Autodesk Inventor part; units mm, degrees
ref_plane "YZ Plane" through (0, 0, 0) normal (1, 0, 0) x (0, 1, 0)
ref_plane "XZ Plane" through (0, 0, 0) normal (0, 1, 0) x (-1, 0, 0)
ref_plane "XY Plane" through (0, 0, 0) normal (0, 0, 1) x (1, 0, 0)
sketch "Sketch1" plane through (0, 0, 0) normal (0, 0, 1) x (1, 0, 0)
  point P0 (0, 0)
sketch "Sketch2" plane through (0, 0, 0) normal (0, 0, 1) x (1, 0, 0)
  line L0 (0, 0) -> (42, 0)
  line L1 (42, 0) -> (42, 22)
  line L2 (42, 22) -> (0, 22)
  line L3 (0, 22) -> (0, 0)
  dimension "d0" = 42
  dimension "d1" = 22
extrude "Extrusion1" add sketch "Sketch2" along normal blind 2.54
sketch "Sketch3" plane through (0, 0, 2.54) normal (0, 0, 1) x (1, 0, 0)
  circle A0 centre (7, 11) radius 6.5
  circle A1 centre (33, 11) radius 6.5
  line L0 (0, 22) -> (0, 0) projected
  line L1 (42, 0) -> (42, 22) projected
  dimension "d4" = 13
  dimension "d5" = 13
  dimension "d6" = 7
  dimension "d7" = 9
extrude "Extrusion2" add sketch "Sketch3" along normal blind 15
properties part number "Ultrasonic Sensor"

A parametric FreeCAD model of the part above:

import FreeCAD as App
import Part
import Sketcher

V = App.Vector


def add_polygon(sketch, points):
    """Adds a closed chain of lines whose ends are joined by coincident constraints."""
    first, n = sketch.GeometryCount, len(points)
    for a, b in zip(points, points[1:] + points[:1]):
        sketch.addGeometry(Part.LineSegment(App.Vector(*a, 0), App.Vector(*b, 0)), False)
    for i in range(n):
        sketch.addConstraint(Sketcher.Constraint("Coincident", first + i, 2, first + (i + 1) % n, 1))

doc = App.newDocument("Part")
body = doc.addObject("PartDesign::Body", "Body")

# Sketch on XY plane
sketch1 = doc.addObject("Sketcher::SketchObject", "Sketch")
body.addObject(sketch1)
sketch1.AttachmentSupport = (doc.XY_Plane, [""])
sketch1.MapMode = "FlatFace"
add_polygon(sketch1, [(0, 22), (0, 0), (42, 0), (42, 22)])  # lines 0-3
sketch1.addConstraint(Sketcher.Constraint("Vertical", 0))
sketch1.addConstraint(Sketcher.Constraint("Horizontal", 1))
sketch1.addConstraint(Sketcher.Constraint("Vertical", 2))
sketch1.addConstraint(Sketcher.Constraint("Horizontal", 3))
sketch1.addConstraint(Sketcher.Constraint("Coincident", 0, 2, -1, 1))
sketch1.addConstraint(Sketcher.Constraint("DistanceX", 1, 1, 1, 2, 42.0))
sketch1.addConstraint(Sketcher.Constraint("DistanceY", 0, 2, 0, 1, 22.0))
pad1 = doc.addObject("PartDesign::Pad", "Pad")
body.addObject(pad1)
pad1.Profile = sketch1
pad1.Length = 2.54

# Sketch on XY plane
sketch2 = doc.addObject("Sketcher::SketchObject", "Sketch001")
body.addObject(sketch2)
sketch2.AttachmentSupport = (doc.XY_Plane, [""])
sketch2.MapMode = "FlatFace"
sketch2.AttachmentOffset = App.Placement(V(0, 0, 2.54), App.Rotation())
sketch2.addGeometry(Part.Circle(V(7, 11, 0), V(0, 0, 1), 6.5), False)
sketch2.addGeometry(Part.Circle(V(33, 11, 0), V(0, 0, 1), 6.5), False)
sketch2.addConstraint(Sketcher.Constraint("Equal", 0, 1))
sketch2.addConstraint(Sketcher.Constraint("Horizontal", 0, 3, 1, 3))
sketch2.addConstraint(Sketcher.Constraint("Diameter", 0, 13.0))
sketch2.addConstraint(Sketcher.Constraint("DistanceX", -1, 1, 0, 3, 7.0))
sketch2.addConstraint(Sketcher.Constraint("DistanceY", -1, 1, 0, 3, 11.0))
sketch2.addConstraint(Sketcher.Constraint("DistanceX", -1, 1, 1, 3, 33.0))
pad2 = doc.addObject("PartDesign::Pad", "Pad001")
body.addObject(pad2)
pad2.Profile = sketch2
pad2.Length = 15

doc.recompute()
